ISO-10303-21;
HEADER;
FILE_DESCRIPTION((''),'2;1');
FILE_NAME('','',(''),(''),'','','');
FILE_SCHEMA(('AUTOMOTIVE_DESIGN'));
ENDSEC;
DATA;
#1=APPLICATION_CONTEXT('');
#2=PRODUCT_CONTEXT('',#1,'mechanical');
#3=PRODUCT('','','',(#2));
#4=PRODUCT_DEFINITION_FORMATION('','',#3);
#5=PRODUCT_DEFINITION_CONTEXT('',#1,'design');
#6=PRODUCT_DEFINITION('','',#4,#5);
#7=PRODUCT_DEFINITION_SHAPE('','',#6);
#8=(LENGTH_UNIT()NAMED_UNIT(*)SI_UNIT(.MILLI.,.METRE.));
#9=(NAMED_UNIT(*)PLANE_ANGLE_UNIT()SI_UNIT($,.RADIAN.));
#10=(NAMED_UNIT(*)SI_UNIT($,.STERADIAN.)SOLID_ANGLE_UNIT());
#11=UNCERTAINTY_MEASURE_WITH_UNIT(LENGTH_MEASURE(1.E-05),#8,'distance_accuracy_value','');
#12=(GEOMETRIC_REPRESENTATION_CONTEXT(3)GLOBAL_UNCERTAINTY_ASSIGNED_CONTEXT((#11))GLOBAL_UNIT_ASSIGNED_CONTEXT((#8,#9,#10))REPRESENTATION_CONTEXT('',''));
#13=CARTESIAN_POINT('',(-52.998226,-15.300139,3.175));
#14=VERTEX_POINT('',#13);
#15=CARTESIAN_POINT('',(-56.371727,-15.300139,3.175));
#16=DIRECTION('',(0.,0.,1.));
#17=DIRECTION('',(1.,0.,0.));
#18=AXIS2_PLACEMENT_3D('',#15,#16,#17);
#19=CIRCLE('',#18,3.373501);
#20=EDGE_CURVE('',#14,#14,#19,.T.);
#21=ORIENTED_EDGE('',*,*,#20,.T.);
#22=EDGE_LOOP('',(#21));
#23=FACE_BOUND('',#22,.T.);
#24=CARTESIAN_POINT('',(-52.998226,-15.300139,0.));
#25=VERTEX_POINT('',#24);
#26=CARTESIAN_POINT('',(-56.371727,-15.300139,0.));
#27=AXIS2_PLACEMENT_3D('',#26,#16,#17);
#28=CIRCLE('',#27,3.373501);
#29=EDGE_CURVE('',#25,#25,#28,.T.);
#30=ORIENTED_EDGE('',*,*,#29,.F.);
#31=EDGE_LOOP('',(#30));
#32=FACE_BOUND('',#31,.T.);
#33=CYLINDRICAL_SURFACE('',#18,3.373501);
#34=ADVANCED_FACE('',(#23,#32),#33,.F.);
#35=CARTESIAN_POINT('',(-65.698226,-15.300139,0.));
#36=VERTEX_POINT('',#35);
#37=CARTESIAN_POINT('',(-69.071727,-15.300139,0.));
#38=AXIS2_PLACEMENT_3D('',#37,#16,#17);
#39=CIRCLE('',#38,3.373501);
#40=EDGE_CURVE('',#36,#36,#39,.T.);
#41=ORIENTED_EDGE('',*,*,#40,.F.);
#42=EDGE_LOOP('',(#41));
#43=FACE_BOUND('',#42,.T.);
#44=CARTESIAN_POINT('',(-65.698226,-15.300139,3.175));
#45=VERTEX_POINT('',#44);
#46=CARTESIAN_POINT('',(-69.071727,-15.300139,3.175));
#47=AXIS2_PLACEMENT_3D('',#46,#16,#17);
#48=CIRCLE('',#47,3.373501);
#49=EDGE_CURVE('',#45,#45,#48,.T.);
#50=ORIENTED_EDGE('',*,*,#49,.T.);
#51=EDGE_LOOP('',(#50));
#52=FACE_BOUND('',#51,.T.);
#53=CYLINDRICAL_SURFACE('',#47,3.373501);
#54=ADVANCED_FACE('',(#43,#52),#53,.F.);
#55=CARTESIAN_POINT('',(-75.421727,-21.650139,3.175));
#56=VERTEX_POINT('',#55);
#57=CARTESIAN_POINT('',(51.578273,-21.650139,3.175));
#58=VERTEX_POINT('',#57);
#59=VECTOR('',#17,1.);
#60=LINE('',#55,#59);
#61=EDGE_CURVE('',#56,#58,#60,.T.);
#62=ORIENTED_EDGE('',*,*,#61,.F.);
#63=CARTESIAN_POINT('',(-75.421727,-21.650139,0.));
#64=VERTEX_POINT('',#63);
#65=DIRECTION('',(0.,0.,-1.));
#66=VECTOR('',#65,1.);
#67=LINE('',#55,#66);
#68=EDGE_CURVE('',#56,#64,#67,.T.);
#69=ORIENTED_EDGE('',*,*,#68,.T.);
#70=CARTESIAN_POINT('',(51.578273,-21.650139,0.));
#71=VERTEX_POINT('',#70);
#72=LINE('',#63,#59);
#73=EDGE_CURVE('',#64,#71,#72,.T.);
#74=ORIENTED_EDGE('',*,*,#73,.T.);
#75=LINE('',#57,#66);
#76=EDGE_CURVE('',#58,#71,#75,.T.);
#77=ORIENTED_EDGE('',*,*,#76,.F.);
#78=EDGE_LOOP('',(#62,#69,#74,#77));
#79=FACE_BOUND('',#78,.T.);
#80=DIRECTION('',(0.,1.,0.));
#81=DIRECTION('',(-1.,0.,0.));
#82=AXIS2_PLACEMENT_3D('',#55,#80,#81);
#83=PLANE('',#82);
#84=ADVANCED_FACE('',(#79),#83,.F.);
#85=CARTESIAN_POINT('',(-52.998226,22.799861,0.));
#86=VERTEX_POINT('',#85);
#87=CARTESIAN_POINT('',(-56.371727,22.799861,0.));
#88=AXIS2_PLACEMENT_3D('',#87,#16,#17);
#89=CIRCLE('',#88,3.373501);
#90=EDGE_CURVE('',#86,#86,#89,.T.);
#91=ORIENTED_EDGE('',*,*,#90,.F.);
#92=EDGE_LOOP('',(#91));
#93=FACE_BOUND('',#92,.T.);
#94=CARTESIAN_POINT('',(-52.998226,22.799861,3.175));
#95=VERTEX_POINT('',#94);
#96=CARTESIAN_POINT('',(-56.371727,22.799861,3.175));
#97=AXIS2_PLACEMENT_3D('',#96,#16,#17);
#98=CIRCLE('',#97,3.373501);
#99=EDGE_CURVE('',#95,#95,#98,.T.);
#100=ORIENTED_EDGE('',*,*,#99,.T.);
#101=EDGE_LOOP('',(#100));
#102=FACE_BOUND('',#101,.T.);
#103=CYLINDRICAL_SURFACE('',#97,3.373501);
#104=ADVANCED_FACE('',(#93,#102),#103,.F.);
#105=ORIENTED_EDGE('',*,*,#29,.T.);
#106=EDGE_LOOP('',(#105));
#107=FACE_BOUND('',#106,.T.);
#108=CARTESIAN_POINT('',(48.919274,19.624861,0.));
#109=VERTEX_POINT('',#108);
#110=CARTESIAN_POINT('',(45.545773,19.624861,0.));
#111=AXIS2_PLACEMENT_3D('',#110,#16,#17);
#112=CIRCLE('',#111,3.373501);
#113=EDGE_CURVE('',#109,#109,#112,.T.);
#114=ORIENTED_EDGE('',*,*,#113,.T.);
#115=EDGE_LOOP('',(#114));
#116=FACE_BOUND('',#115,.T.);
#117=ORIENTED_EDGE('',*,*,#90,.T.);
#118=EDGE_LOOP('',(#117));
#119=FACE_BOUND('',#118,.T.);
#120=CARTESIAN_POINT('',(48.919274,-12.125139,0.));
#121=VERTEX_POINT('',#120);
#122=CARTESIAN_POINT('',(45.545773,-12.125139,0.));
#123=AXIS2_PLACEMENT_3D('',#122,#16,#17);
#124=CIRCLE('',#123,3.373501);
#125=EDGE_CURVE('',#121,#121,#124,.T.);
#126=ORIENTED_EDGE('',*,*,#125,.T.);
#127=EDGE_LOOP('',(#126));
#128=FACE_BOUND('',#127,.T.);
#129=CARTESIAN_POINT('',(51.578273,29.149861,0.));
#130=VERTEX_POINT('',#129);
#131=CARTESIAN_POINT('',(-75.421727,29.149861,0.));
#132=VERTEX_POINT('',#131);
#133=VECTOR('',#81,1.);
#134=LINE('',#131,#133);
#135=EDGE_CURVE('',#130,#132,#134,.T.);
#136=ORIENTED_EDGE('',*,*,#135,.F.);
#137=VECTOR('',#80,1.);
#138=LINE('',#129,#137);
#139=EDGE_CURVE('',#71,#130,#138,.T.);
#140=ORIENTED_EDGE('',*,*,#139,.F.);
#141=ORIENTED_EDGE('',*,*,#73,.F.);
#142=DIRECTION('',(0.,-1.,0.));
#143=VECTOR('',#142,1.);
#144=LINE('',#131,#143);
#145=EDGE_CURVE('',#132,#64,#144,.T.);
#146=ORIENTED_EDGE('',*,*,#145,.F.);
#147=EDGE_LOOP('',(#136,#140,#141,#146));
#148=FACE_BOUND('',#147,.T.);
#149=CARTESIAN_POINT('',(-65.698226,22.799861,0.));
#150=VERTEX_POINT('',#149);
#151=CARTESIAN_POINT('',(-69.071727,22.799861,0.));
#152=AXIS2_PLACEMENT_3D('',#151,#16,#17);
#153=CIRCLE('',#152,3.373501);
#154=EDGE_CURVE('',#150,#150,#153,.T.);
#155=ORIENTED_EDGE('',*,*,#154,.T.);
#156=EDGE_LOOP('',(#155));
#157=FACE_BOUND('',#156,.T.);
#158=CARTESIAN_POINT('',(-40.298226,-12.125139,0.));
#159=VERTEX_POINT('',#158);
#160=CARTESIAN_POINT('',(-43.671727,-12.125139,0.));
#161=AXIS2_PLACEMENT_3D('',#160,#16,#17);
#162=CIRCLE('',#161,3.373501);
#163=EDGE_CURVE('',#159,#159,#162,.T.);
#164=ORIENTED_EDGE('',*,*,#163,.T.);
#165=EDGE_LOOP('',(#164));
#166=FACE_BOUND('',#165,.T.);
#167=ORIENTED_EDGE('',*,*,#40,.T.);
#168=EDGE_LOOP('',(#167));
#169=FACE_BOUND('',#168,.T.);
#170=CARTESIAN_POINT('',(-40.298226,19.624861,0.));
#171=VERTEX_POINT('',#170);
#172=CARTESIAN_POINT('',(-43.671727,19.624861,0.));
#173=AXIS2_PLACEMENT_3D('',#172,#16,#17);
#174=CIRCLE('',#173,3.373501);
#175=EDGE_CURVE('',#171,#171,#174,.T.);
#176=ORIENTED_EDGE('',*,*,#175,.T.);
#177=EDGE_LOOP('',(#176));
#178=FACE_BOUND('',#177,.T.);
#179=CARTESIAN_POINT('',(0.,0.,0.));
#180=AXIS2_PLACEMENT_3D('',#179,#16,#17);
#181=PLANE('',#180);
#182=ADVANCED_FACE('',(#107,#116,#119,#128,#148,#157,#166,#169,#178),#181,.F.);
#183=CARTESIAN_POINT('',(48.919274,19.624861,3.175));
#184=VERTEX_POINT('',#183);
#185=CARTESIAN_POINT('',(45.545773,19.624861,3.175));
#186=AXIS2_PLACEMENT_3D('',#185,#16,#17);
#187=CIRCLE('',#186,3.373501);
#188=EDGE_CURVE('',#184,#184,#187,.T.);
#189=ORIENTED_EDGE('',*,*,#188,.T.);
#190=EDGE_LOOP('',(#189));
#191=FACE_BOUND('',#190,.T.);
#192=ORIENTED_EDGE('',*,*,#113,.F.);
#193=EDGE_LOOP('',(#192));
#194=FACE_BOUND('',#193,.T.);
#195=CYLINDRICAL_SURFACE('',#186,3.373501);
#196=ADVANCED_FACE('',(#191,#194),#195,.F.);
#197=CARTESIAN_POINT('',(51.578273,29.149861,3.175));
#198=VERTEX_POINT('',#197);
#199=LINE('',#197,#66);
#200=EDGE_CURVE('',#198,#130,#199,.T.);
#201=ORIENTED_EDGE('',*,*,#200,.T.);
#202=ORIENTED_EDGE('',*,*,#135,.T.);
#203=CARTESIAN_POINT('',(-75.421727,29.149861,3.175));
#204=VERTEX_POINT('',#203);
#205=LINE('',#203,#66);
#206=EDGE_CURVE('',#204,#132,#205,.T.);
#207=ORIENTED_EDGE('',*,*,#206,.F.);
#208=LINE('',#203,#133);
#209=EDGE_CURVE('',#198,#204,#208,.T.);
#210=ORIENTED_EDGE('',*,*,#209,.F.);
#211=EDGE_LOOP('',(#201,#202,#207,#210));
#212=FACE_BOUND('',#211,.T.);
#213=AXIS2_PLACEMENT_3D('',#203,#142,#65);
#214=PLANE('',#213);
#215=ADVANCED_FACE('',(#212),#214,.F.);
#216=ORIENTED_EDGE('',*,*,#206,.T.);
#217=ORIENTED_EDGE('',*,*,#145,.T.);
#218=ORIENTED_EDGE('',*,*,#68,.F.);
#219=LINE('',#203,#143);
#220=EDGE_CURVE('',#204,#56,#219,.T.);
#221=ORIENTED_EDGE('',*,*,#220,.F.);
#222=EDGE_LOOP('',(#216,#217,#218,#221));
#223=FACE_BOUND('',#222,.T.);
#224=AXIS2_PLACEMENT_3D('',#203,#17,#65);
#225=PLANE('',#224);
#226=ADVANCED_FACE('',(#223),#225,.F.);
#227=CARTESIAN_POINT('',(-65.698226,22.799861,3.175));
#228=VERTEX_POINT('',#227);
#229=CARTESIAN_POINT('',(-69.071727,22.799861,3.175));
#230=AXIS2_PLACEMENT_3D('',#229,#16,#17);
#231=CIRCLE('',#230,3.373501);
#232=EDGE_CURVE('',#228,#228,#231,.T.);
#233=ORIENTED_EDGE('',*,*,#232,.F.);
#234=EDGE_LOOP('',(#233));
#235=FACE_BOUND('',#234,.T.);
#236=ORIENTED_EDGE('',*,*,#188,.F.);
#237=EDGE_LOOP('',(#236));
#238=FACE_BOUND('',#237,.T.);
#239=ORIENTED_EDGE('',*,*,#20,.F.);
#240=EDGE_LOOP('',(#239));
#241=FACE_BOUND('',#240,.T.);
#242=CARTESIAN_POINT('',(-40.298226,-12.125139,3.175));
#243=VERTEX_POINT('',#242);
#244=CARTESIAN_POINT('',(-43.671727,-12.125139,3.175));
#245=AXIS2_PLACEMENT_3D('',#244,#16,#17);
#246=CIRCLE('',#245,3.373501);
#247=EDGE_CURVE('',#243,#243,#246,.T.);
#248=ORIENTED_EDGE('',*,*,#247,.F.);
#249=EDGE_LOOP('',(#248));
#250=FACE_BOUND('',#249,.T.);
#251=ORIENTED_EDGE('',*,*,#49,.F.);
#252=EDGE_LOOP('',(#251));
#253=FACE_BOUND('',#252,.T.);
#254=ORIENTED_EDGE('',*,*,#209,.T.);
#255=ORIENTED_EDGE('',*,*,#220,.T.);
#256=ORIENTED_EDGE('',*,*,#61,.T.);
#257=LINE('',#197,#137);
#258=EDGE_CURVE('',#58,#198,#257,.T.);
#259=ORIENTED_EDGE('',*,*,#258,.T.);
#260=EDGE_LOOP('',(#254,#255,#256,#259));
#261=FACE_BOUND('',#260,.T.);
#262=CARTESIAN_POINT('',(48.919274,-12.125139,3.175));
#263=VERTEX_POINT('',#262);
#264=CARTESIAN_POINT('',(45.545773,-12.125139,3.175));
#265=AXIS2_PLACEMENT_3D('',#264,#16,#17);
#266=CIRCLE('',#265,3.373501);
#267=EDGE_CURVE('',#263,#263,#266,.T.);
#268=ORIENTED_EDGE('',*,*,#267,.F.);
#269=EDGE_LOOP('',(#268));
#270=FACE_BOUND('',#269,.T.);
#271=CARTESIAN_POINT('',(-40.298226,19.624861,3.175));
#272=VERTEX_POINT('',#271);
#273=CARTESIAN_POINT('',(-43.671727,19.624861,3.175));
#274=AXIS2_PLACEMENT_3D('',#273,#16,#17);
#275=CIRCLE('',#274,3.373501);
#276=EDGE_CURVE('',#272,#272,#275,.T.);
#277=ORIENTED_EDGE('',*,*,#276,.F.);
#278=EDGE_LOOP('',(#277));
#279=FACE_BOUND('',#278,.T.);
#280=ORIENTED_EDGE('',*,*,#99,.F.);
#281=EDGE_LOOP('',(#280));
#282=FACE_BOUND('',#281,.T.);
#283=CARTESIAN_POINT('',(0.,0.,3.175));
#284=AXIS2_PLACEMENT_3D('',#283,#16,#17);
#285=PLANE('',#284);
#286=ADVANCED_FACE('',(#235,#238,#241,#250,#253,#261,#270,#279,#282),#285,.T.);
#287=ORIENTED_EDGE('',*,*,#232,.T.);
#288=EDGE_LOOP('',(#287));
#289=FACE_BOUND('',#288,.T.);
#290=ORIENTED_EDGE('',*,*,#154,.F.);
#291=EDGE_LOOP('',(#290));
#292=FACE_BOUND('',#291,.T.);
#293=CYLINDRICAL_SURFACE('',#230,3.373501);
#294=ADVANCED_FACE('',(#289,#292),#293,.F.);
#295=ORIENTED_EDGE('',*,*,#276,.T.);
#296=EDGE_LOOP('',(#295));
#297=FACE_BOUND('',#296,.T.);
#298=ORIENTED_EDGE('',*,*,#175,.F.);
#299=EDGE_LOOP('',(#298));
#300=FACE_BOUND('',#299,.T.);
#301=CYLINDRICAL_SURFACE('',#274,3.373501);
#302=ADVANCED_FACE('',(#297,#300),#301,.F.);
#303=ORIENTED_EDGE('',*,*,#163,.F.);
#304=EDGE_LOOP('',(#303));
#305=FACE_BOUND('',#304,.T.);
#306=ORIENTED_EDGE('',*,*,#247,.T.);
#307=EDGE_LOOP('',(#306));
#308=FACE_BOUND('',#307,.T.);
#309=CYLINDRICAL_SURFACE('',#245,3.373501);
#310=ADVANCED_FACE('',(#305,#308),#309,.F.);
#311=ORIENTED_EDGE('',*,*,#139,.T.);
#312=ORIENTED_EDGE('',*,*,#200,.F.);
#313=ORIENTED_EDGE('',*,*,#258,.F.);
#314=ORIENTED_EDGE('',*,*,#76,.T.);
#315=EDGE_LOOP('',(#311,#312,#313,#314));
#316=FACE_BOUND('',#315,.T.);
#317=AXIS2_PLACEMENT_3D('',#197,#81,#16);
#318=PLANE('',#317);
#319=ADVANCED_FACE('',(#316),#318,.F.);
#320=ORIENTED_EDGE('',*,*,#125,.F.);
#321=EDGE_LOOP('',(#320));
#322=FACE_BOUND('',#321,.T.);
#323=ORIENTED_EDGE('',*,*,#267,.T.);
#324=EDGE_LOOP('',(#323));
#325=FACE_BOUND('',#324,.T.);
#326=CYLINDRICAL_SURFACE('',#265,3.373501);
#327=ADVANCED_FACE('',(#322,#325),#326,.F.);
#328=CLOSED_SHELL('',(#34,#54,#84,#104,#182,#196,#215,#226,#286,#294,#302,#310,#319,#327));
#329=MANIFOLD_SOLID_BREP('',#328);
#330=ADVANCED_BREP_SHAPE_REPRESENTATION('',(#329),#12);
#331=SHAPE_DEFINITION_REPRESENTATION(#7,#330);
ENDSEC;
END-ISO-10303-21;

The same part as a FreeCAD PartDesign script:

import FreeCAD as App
import Part
import Sketcher
Q = App.Units.Quantity


def add_polygon(sketch, points):
    """Adds a closed chain of lines whose ends are joined by coincident constraints."""
    first, n = sketch.GeometryCount, len(points)
    for a, b in zip(points, points[1:] + points[:1]):
        sketch.addGeometry(Part.LineSegment(App.Vector(*a, 0), App.Vector(*b, 0)), False)
    for i in range(n):
        sketch.addConstraint(Sketcher.Constraint("Coincident", first + i, 2, first + (i + 1) % n, 1))

doc = App.newDocument("Part")
body = doc.addObject("PartDesign::Body", "Body")

sketch1 = body.newObject("Sketcher::SketchObject", "Sketch")
sketch1.AttachmentSupport = (doc.getObject("XY_Plane"), [""])
sketch1.MapMode = "FlatFace"
add_polygon(sketch1, [(-75.421727, 29.149861), (-75.421727, -21.650139), (51.578273, -21.650139), (51.578273, 29.149861)])
sketch1.addConstraint(Sketcher.Constraint("Vertical", 0))
sketch1.addConstraint(Sketcher.Constraint("Horizontal", 1))
sketch1.addConstraint(Sketcher.Constraint("Vertical", 2))
sketch1.addConstraint(Sketcher.Constraint("Horizontal", 3))
sketch1.addConstraint(Sketcher.Constraint("DistanceX", 1, 1, 1, 2, Q("5 in")))
sketch1.addConstraint(Sketcher.Constraint("DistanceY", 0, 2, 0, 1, Q("2 in")))
sketch1.addConstraint(Sketcher.Constraint("DistanceY", 0, 2, -1, 1, Q("21.650139 mm")))
sketch1.addConstraint(Sketcher.Constraint("DistanceX", 0, 2, -1, 1, Q("75.421727 mm")))
pad1 = body.newObject("PartDesign::Pad", "Pad")
pad1.Profile = sketch1
pad1.Length = Q("0.125 in")

sketch2 = body.newObject("Sketcher::SketchObject", "Sketch001")
sketch2.AttachmentSupport = (doc.getObject("XY_Plane"), [""])
sketch2.MapMode = "FlatFace"
sketch2.AttachmentOffset = App.Placement(App.Vector(0, 0, 0.125 * 25.4), App.Rotation())
sketch2.addGeometry(Part.Circle(App.Vector(-43.671727, 19.624861, 0), App.Vector(0, 0, 1), 3.373501), False)
sketch2.addGeometry(Part.Circle(App.Vector(-43.671727, -12.125139, 0), App.Vector(0, 0, 1), 3.373501), False)
sketch2.addGeometry(Part.Circle(App.Vector(45.545773, 19.624861, 0), App.Vector(0, 0, 1), 3.373501), False)
sketch2.addGeometry(Part.Circle(App.Vector(45.545773, -12.125139, 0), App.Vector(0, 0, 1), 3.373501), False)
sketch2.addConstraint(Sketcher.Constraint("Equal", 0, 1))
sketch2.addConstraint(Sketcher.Constraint("Equal", 1, 2))
sketch2.addConstraint(Sketcher.Constraint("Equal", 2, 3))
sketch2.addConstraint(Sketcher.Constraint("Horizontal", 0, 3, 2, 3))
sketch2.addConstraint(Sketcher.Constraint("Horizontal", 1, 3, 3, 3))
sketch2.addConstraint(Sketcher.Constraint("Vertical", 0, 3, 1, 3))
sketch2.addConstraint(Sketcher.Constraint("Vertical", 2, 3, 3, 3))
sketch2.addConstraint(Sketcher.Constraint("DistanceY", 1, 3, 0, 3, Q("1.25 in")))
sketch2.addConstraint(Sketcher.Constraint("Diameter", 0, Q("6.747002 mm")))
sketch2.addConstraint(Sketcher.Constraint("DistanceX", 0, 3, 2, 3, Q("3.5125 in")))
sketch2.addConstraint(Sketcher.Constraint("DistanceY", -1, 1, 0, 3, Q("19.624861 mm")))
sketch2.addConstraint(Sketcher.Constraint("DistanceX", 0, 3, -1, 1, Q("43.671727 mm")))
doc.recompute()
hole = body.newObject("PartDesign::Hole", "Hole")
hole.Profile = sketch2
hole.ThreadType = "None"
hole.Diameter = 6.747002
hole.DepthType = "ThroughAll"

sketch3 = body.newObject("Sketcher::SketchObject", "Sketch002")
sketch3.AttachmentSupport = (doc.getObject("XY_Plane"), [""])
sketch3.MapMode = "FlatFace"
sketch3.AttachmentOffset = App.Placement(App.Vector(0, 0, 0.125 * 25.4), App.Rotation())
sketch3.addGeometry(Part.Circle(App.Vector(-69.071727, 22.799861, 0), App.Vector(0, 0, 1), 3.373501), False)
sketch3.addGeometry(Part.Circle(App.Vector(-56.371727, 22.799861, 0), App.Vector(0, 0, 1), 3.373501), False)
sketch3.addGeometry(Part.Circle(App.Vector(-56.371727, -15.300139, 0), App.Vector(0, 0, 1), 3.373501), False)
sketch3.addGeometry(Part.Circle(App.Vector(-69.071727, -15.300139, 0), App.Vector(0, 0, 1), 3.373501), False)
sketch3.addConstraint(Sketcher.Constraint("Equal", 0, 1))
sketch3.addConstraint(Sketcher.Constraint("Equal", 1, 2))
sketch3.addConstraint(Sketcher.Constraint("Equal", 2, 3))
sketch3.addConstraint(Sketcher.Constraint("Horizontal", 0, 3, 1, 3))
sketch3.addConstraint(Sketcher.Constraint("Horizontal", 2, 3, 3, 3))
sketch3.addConstraint(Sketcher.Constraint("Vertical", 1, 3, 2, 3))
sketch3.addConstraint(Sketcher.Constraint("Vertical", 0, 3, 3, 3))
sketch3.addConstraint(Sketcher.Constraint("DistanceX", 0, 3, 1, 3, Q("0.5 in")))
sketch3.addConstraint(Sketcher.Constraint("DistanceY", 2, 3, 1, 3, Q("1.5 in")))
sketch3.addConstraint(Sketcher.Constraint("Diameter", 0, Q("6.747002 mm")))
sketch3.addConstraint(Sketcher.Constraint("DistanceY", -1, 1, 0, 3, Q("22.799861 mm")))
sketch3.addConstraint(Sketcher.Constraint("DistanceX", 0, 3, -1, 1, Q("69.071727 mm")))
doc.recompute()
hole2 = body.newObject("PartDesign::Hole", "Hole001")
hole2.Profile = sketch3
hole2.ThreadType = "None"
hole2.Diameter = 6.747002
hole2.DepthType = "ThroughAll"

doc.recompute()
